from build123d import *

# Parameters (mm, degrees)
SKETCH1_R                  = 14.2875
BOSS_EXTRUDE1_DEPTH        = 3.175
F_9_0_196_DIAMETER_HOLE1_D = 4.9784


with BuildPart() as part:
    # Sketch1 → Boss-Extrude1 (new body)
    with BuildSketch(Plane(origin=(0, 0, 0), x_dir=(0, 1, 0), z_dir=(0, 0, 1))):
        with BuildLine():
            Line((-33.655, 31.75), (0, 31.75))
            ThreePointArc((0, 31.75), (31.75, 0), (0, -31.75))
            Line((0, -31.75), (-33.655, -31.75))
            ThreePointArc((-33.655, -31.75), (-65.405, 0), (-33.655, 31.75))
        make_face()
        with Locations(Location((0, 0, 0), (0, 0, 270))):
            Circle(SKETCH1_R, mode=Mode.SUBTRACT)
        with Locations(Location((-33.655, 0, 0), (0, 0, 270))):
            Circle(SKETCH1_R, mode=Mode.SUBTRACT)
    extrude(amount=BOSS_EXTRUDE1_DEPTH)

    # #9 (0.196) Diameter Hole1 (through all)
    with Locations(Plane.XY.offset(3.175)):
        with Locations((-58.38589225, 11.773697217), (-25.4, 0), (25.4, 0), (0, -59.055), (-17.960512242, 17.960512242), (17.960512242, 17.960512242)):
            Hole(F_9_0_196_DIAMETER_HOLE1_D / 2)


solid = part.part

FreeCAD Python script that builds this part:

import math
import FreeCAD as App
import Part
import Sketcher
Q = App.Units.Quantity

doc = App.newDocument("Part")
body = doc.addObject("PartDesign::Body", "Body")

# Sketch on XY plane
sketch1 = body.newObject("Sketcher::SketchObject", "Sketch")
sketch1.AttachmentSupport = (doc.getObject("XY_Plane"), [""])
sketch1.MapMode = "FlatFace"
sketch1.addGeometry(Part.LineSegment(App.Vector(-31.75, 0, 0), App.Vector(-31.75, -33.655, 0)), False)
sketch1.addGeometry(Part.ArcOfCircle(Part.Circle(App.Vector(0, -33.655, 0), App.Vector(0, 0, 1), 31.75), math.radians(180), math.radians(360)), False)
sketch1.addGeometry(Part.LineSegment(App.Vector(31.75, -33.655, 0), App.Vector(31.75, 0, 0)), False)
sketch1.addGeometry(Part.ArcOfCircle(Part.Circle(App.Vector(0, 0, 0), App.Vector(0, 0, 1), 31.75), math.radians(0), math.radians(180)), False)
sketch1.addGeometry(Part.Circle(App.Vector(0, 0, 0), App.Vector(0, 0, 1), 14.2875), False)
sketch1.addGeometry(Part.Circle(App.Vector(0, -33.655, 0), App.Vector(0, 0, 1), 14.2875), False)
sketch1.addConstraint(Sketcher.Constraint("Tangent", 0, 2, 1, 1))
sketch1.addConstraint(Sketcher.Constraint("Tangent", 1, 2, 2, 1))
sketch1.addConstraint(Sketcher.Constraint("Tangent", 2, 2, 3, 1))
sketch1.addConstraint(Sketcher.Constraint("Tangent", 3, 2, 0, 1))
sketch1.addConstraint(Sketcher.Constraint("Vertical", 0))
sketch1.addConstraint(Sketcher.Constraint("Vertical", 2))
sketch1.addConstraint(Sketcher.Constraint("Coincident", 3, 3, -1, 1))
sketch1.addConstraint(Sketcher.Constraint("Coincident", 4, 3, -1, 1))
sketch1.addConstraint(Sketcher.Constraint("Coincident", 5, 3, 1, 3))
sketch1.addConstraint(Sketcher.Constraint("Equal", 4, 5))
sketch1.addConstraint(Sketcher.Constraint("Radius", 1, Q("1.25 in")))
sketch1.addConstraint(Sketcher.Constraint("Diameter", 4, Q("1.125 in")))
sketch1.addConstraint(Sketcher.Constraint("DistanceY", 0, 2, 0, 1, Q("1.325 in")))
pad1 = body.newObject("PartDesign::Pad", "Pad")
pad1.Profile = sketch1
pad1.Length = Q("0.125 in")

# Sketch on XY plane
sketch2 = body.newObject("Sketcher::SketchObject", "Sketch001")
sketch2.AttachmentSupport = (doc.getObject("XY_Plane"), [""])
sketch2.MapMode = "FlatFace"
sketch2.AttachmentOffset = App.Placement(App.Vector(0, 0, 0.125 * 25.4), App.Rotation())
sketch2.addGeometry(Part.Circle(App.Vector(-58.385892, 11.773697, 0), App.Vector(0, 0, 1), 2.4892), False)
sketch2.addGeometry(Part.Circle(App.Vector(-25.4, 0, 0), App.Vector(0, 0, 1), 2.4892), False)
sketch2.addGeometry(Part.Circle(App.Vector(25.4, 0, 0), App.Vector(0, 0, 1), 2.4892), False)
sketch2.addGeometry(Part.Circle(App.Vector(0, -59.055, 0), App.Vector(0, 0, 1), 2.4892), False)
sketch2.addGeometry(Part.Circle(App.Vector(-17.960512, 17.960512, 0), App.Vector(0, 0, 1), 2.4892), False)
sketch2.addGeometry(Part.Circle(App.Vector(17.960512, 17.960512, 0), App.Vector(0, 0, 1), 2.4892), False)
sketch2.addConstraint(Sketcher.Constraint("Equal", 0, 1))
sketch2.addConstraint(Sketcher.Constraint("Equal", 1, 2))
sketch2.addConstraint(Sketcher.Constraint("Equal", 2, 3))
sketch2.addConstraint(Sketcher.Constraint("Equal", 3, 4))
sketch2.addConstraint(Sketcher.Constraint("Equal", 4, 5))
sketch2.addConstraint(Sketcher.Constraint("Symmetric", 1, 3, 2, 3, -1, 1))
sketch2.addConstraint(Sketcher.Constraint("Symmetric", 4, 3, 5, 3, -2))
sketch2.addConstraint(Sketcher.Constraint("PointOnObject", 1, 3, -1))
sketch2.addConstraint(Sketcher.Constraint("PointOnObject", 3, 3, -2))
sketch2.addConstraint(Sketcher.Constraint("Diameter", 0, Q("0.196 in")))
sketch2.addConstraint(Sketcher.Constraint("DistanceX", 1, 3, -1, 1, Q("1 in")))
sketch2.addConstraint(Sketcher.Constraint("DistanceY", 3, 3, -1, 1, Q("2.325 in")))
sketch2.addConstraint(Sketcher.Constraint("DistanceX", 0, 3, 4, 3, Q("40.42538 mm")))
sketch2.addConstraint(Sketcher.Constraint("DistanceX", 0, 3, -1, 1, Q("58.385892 mm")))
sketch2.addConstraint(Sketcher.Constraint("DistanceY", -1, 1, 0, 3, Q("11.773697 mm")))
sketch2.addConstraint(Sketcher.Constraint("DistanceY", -1, 1, 4, 3, Q("17.960512 mm")))
doc.recompute()
hole = body.newObject("PartDesign::Hole", "Hole")
hole.Profile = sketch2
hole.ThreadType = "None"
hole.Diameter = Q("0.196 in")
hole.DepthType = "ThroughAll"

doc.recompute()
